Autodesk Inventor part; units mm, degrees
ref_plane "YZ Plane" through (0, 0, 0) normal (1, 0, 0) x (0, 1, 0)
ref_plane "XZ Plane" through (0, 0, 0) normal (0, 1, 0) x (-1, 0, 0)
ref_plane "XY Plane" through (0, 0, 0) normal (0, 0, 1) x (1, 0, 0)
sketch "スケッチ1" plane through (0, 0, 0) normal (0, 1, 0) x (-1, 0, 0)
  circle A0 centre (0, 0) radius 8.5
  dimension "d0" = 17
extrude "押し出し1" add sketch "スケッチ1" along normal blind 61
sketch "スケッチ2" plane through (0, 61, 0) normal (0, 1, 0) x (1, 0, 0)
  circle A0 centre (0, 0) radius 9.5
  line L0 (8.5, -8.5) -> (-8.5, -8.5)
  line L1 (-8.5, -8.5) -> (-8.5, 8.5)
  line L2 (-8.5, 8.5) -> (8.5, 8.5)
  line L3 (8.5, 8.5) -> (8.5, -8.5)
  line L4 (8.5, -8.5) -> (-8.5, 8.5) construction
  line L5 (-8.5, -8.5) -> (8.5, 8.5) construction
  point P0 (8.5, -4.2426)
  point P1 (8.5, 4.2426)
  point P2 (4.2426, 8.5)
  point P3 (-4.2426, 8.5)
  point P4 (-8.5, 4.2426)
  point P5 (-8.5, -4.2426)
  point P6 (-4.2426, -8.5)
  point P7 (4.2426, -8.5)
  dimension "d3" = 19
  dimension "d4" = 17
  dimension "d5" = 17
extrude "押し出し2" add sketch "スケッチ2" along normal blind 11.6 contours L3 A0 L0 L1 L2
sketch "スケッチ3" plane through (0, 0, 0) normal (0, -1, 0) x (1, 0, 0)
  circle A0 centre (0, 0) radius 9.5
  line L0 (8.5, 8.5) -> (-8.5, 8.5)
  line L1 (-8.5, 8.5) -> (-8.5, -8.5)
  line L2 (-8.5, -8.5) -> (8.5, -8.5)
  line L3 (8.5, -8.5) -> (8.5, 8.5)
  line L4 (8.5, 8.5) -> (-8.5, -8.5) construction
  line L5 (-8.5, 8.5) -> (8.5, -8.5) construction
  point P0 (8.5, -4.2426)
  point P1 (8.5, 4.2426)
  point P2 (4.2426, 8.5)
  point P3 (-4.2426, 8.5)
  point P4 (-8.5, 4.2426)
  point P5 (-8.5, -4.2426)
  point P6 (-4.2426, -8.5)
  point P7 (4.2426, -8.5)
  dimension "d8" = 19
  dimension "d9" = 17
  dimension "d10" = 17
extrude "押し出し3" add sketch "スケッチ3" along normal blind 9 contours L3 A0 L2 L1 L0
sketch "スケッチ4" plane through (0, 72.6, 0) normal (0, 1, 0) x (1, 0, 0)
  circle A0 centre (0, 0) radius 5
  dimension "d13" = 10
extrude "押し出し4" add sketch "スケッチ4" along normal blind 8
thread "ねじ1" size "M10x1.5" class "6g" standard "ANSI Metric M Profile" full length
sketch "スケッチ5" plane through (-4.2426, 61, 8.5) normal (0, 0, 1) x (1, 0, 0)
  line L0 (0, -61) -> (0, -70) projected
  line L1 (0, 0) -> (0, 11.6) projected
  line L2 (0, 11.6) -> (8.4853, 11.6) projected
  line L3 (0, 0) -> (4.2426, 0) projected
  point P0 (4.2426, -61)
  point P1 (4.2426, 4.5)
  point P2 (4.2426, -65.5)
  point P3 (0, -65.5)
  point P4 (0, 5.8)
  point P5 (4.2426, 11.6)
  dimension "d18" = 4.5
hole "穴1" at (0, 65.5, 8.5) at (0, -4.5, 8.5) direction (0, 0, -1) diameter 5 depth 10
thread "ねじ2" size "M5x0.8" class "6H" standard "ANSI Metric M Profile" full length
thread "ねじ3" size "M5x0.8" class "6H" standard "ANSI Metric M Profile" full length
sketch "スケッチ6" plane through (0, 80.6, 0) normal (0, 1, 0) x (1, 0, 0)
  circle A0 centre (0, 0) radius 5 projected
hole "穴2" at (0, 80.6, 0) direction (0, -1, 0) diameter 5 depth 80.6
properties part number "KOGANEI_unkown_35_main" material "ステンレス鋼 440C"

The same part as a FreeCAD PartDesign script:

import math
import FreeCAD as App
import Part
import Sketcher

V = App.Vector

doc = App.newDocument("Part")
body = doc.addObject("PartDesign::Body", "Body")

# Sketch on XZ plane
sketch1 = body.newObject("Sketcher::SketchObject", "Sketch")
sketch1.AttachmentSupport = (doc.getObject("XZ_Plane"), [""])
sketch1.MapMode = "FlatFace"
sketch1.addGeometry(Part.Circle(V(0, 0, 0), V(0, 0, 1), 8), False)
sketch1.addConstraint(Sketcher.Constraint("Coincident", 0, 3, -1, 1))
sketch1.addConstraint(Sketcher.Constraint("Diameter", 0, 17.0))
pad1 = body.newObject("PartDesign::Pad", "Pad")
pad1.Profile = sketch1
pad1.Length = 61
pad1.Reversed = True

# Sketch on XZ plane
sketch2 = body.newObject("Sketcher::SketchObject", "Sketch001")
sketch2.AttachmentSupport = (doc.getObject("XZ_Plane"), [""])
sketch2.MapMode = "FlatFace"
sketch2.AttachmentOffset = App.Placement(V(0, 0, -61), App.Rotation())
sketch2.addGeometry(Part.LineSegment(V(8, 4, 0), V(8, -4, 0)), False)
sketch2.addGeometry(Part.ArcOfCircle(Part.Circle(V(0, 0, 0), V(0, 0, 1), 10), math.radians(-63), math.radians(-27)), False)
sketch2.addGeometry(Part.LineSegment(V(4, -8, 0), V(-4, -8, 0)), False)
sketch2.addGeometry(Part.ArcOfCircle(Part.Circle(V(0, 0, 0), V(0, 0, 1), 10), math.radians(-153), math.radians(-117)), False)
sketch2.addGeometry(Part.LineSegment(V(-8, -4, 0), V(-8, 4, 0)), False)
sketch2.addGeometry(Part.ArcOfCircle(Part.Circle(V(0, 0, 0), V(0, 0, 1), 10), math.radians(117), math.radians(153)), False)
sketch2.addGeometry(Part.LineSegment(V(-4, 8, 0), V(4, 8, 0)), False)
sketch2.addGeometry(Part.ArcOfCircle(Part.Circle(V(0, 0, 0), V(0, 0, 1), 10), math.radians(27), math.radians(63)), False)
sketch2.addConstraint(Sketcher.Constraint("Coincident", 0, 2, 1, 2))
sketch2.addConstraint(Sketcher.Constraint("Coincident", 1, 1, 2, 1))
sketch2.addConstraint(Sketcher.Constraint("Coincident", 2, 2, 3, 2))
sketch2.addConstraint(Sketcher.Constraint("Coincident", 3, 1, 4, 1))
sketch2.addConstraint(Sketcher.Constraint("Coincident", 4, 2, 5, 2))
sketch2.addConstraint(Sketcher.Constraint("Coincident", 5, 1, 6, 1))
sketch2.addConstraint(Sketcher.Constraint("Coincident", 6, 2, 7, 2))
sketch2.addConstraint(Sketcher.Constraint("Coincident", 7, 1, 0, 1))
sketch2.addConstraint(Sketcher.Constraint("Vertical", 0))
sketch2.addConstraint(Sketcher.Constraint("Horizontal", 2))
sketch2.addConstraint(Sketcher.Constraint("Vertical", 4))
sketch2.addConstraint(Sketcher.Constraint("Horizontal", 6))
sketch2.addConstraint(Sketcher.Constraint("Coincident", 1, 3, -1, 1))
sketch2.addConstraint(Sketcher.Constraint("Coincident", 3, 3, -1, 1))
sketch2.addConstraint(Sketcher.Constraint("Coincident", 5, 3, -1, 1))
sketch2.addConstraint(Sketcher.Constraint("Coincident", 7, 3, -1, 1))
sketch2.addConstraint(Sketcher.Constraint("Equal", 1, 3))
sketch2.addConstraint(Sketcher.Constraint("Equal", 3, 5))
sketch2.addConstraint(Sketcher.Constraint("Equal", 5, 7))
sketch2.addConstraint(Sketcher.Constraint("Horizontal", 0, 2, 3, 1))
sketch2.addConstraint(Sketcher.Constraint("Vertical", 2, 2, 5, 1))
sketch2.addConstraint(Sketcher.Constraint("Equal", 6, 0))
sketch2.addConstraint(Sketcher.Constraint("Radius", 1, 9.5))
sketch2.addConstraint(Sketcher.Constraint("DistanceX", -1, 1, 0, 2, 8.5))
pad2 = body.newObject("PartDesign::Pad", "Pad001")
pad2.Profile = sketch2
pad2.Length = 11.6
pad2.Reversed = True

# Sketch on XZ plane
sketch3 = body.newObject("Sketcher::SketchObject", "Sketch002")
sketch3.AttachmentSupport = (doc.getObject("XZ_Plane"), [""])
sketch3.MapMode = "FlatFace"
sketch3.addGeometry(Part.LineSegment(V(8, -4, 0), V(8, 4, 0)), False)
sketch3.addGeometry(Part.ArcOfCircle(Part.Circle(V(0, 0, 0), V(0, 0, 1), 10), math.radians(27), math.radians(63)), False)
sketch3.addGeometry(Part.LineSegment(V(4, 8, 0), V(-4, 8, 0)), False)
sketch3.addGeometry(Part.ArcOfCircle(Part.Circle(V(0, 0, 0), V(0, 0, 1), 10), math.radians(117), math.radians(153)), False)
sketch3.addGeometry(Part.LineSegment(V(-8, 4, 0), V(-8, -4, 0)), False)
sketch3.addGeometry(Part.ArcOfCircle(Part.Circle(V(0, 0, 0), V(0, 0, 1), 10), math.radians(-153), math.radians(-117)), False)
sketch3.addGeometry(Part.LineSegment(V(-4, -8, 0), V(4, -8, 0)), False)
sketch3.addGeometry(Part.ArcOfCircle(Part.Circle(V(0, 0, 0), V(0, 0, 1), 10), math.radians(-63), math.radians(-27)), False)
sketch3.addConstraint(Sketcher.Constraint("Coincident", 0, 2, 1, 1))
sketch3.addConstraint(Sketcher.Constraint("Coincident", 1, 2, 2, 1))
sketch3.addConstraint(Sketcher.Constraint("Coincident", 2, 2, 3, 1))
sketch3.addConstraint(Sketcher.Constraint("Coincident", 3, 2, 4, 1))
sketch3.addConstraint(Sketcher.Constraint("Coincident", 4, 2, 5, 1))
sketch3.addConstraint(Sketcher.Constraint("Coincident", 5, 2, 6, 1))
sketch3.addConstraint(Sketcher.Constraint("Coincident", 6, 2, 7, 1))
sketch3.addConstraint(Sketcher.Constraint("Coincident", 7, 2, 0, 1))
sketch3.addConstraint(Sketcher.Constraint("Vertical", 0))
sketch3.addConstraint(Sketcher.Constraint("Horizontal", 2))
sketch3.addConstraint(Sketcher.Constraint("Vertical", 4))
sketch3.addConstraint(Sketcher.Constraint("Horizontal", 6))
sketch3.addConstraint(Sketcher.Constraint("Coincident", 1, 3, -1, 1))
sketch3.addConstraint(Sketcher.Constraint("Coincident", 3, 3, -1, 1))
sketch3.addConstraint(Sketcher.Constraint("Coincident", 5, 3, -1, 1))
sketch3.addConstraint(Sketcher.Constraint("Coincident", 7, 3, -1, 1))
sketch3.addConstraint(Sketcher.Constraint("Equal", 1, 3))
sketch3.addConstraint(Sketcher.Constraint("Equal", 3, 5))
sketch3.addConstraint(Sketcher.Constraint("Equal", 5, 7))
sketch3.addConstraint(Sketcher.Constraint("Horizontal", 0, 2, 3, 2))
sketch3.addConstraint(Sketcher.Constraint("Vertical", 2, 2, 5, 2))
sketch3.addConstraint(Sketcher.Constraint("Equal", 6, 0))
sketch3.addConstraint(Sketcher.Constraint("Radius", 1, 9.5))
sketch3.addConstraint(Sketcher.Constraint("DistanceX", -1, 1, 0, 2, 8.5))
pad3 = body.newObject("PartDesign::Pad", "Pad002")
pad3.Profile = sketch3
pad3.Length = 9

# Sketch on XZ plane
sketch4 = body.newObject("Sketcher::SketchObject", "Sketch003")
sketch4.AttachmentSupport = (doc.getObject("XZ_Plane"), [""])
sketch4.MapMode = "FlatFace"
sketch4.AttachmentOffset = App.Placement(V(0, 0, -72.6), App.Rotation())
sketch4.addGeometry(Part.Circle(V(0, 0, 0), V(0, 0, 1), 5), False)
sketch4.addConstraint(Sketcher.Constraint("Coincident", 0, 3, -1, 1))
sketch4.addConstraint(Sketcher.Constraint("Diameter", 0, 10.0))
pad4 = body.newObject("PartDesign::Pad", "Pad003")
pad4.Profile = sketch4
pad4.Length = 8
pad4.Reversed = True

# Sketch on XY plane
sketch5 = body.newObject("Sketcher::SketchObject", "Sketch004")
sketch5.AttachmentSupport = (doc.getObject("XY_Plane"), [""])
sketch5.MapMode = "FlatFace"
sketch5.AttachmentOffset = App.Placement(V(0, 0, 8.5), App.Rotation())
sketch5.addGeometry(Part.Circle(V(0, 65.5, 0), V(0, 0, 1), 2.5), False)
sketch5.addGeometry(Part.Circle(V(0, -4.5, 0), V(0, 0, 1), 2.5), False)
sketch5.addConstraint(Sketcher.Constraint("Equal", 0, 1))
sketch5.addConstraint(Sketcher.Constraint("PointOnObject", 0, 3, -2))
sketch5.addConstraint(Sketcher.Constraint("PointOnObject", 1, 3, -2))
sketch5.addConstraint(Sketcher.Constraint("Diameter", 0, 5.0))
sketch5.addConstraint(Sketcher.Constraint("DistanceY", 1, 3, 0, 3, 70.0))
sketch5.addConstraint(Sketcher.Constraint("DistanceY", -1, 1, 0, 3, 65.5))
doc.recompute()
hole = body.newObject("PartDesign::Hole", "Hole")
hole.Profile = sketch5
hole.ThreadType = "None"
hole.Diameter = 5
hole.DepthType = "Dimension"
hole.Depth = 10
hole.DrillPoint = "Flat"

# Sketch on XZ plane
sketch6 = body.newObject("Sketcher::SketchObject", "Sketch005")
sketch6.AttachmentSupport = (doc.getObject("XZ_Plane"), [""])
sketch6.MapMode = "FlatFace"
sketch6.AttachmentOffset = App.Placement(V(0, 0, -80.6), App.Rotation())
sketch6.addGeometry(Part.Circle(V(0, 0, 0), V(0, 0, 1), 2.5), False)
sketch6.addConstraint(Sketcher.Constraint("Coincident", 0, 3, -1, 1))
sketch6.addConstraint(Sketcher.Constraint("Diameter", 0, 5.0))
doc.recompute()
hole2 = body.newObject("PartDesign::Hole", "Hole001")
hole2.Profile = sketch6
hole2.ThreadType = "None"
hole2.Diameter = 5
hole2.DepthType = "Dimension"
hole2.Depth = 80.6
hole2.DrillPoint = "Flat"
hole2.Reversed = True

doc.recompute()
